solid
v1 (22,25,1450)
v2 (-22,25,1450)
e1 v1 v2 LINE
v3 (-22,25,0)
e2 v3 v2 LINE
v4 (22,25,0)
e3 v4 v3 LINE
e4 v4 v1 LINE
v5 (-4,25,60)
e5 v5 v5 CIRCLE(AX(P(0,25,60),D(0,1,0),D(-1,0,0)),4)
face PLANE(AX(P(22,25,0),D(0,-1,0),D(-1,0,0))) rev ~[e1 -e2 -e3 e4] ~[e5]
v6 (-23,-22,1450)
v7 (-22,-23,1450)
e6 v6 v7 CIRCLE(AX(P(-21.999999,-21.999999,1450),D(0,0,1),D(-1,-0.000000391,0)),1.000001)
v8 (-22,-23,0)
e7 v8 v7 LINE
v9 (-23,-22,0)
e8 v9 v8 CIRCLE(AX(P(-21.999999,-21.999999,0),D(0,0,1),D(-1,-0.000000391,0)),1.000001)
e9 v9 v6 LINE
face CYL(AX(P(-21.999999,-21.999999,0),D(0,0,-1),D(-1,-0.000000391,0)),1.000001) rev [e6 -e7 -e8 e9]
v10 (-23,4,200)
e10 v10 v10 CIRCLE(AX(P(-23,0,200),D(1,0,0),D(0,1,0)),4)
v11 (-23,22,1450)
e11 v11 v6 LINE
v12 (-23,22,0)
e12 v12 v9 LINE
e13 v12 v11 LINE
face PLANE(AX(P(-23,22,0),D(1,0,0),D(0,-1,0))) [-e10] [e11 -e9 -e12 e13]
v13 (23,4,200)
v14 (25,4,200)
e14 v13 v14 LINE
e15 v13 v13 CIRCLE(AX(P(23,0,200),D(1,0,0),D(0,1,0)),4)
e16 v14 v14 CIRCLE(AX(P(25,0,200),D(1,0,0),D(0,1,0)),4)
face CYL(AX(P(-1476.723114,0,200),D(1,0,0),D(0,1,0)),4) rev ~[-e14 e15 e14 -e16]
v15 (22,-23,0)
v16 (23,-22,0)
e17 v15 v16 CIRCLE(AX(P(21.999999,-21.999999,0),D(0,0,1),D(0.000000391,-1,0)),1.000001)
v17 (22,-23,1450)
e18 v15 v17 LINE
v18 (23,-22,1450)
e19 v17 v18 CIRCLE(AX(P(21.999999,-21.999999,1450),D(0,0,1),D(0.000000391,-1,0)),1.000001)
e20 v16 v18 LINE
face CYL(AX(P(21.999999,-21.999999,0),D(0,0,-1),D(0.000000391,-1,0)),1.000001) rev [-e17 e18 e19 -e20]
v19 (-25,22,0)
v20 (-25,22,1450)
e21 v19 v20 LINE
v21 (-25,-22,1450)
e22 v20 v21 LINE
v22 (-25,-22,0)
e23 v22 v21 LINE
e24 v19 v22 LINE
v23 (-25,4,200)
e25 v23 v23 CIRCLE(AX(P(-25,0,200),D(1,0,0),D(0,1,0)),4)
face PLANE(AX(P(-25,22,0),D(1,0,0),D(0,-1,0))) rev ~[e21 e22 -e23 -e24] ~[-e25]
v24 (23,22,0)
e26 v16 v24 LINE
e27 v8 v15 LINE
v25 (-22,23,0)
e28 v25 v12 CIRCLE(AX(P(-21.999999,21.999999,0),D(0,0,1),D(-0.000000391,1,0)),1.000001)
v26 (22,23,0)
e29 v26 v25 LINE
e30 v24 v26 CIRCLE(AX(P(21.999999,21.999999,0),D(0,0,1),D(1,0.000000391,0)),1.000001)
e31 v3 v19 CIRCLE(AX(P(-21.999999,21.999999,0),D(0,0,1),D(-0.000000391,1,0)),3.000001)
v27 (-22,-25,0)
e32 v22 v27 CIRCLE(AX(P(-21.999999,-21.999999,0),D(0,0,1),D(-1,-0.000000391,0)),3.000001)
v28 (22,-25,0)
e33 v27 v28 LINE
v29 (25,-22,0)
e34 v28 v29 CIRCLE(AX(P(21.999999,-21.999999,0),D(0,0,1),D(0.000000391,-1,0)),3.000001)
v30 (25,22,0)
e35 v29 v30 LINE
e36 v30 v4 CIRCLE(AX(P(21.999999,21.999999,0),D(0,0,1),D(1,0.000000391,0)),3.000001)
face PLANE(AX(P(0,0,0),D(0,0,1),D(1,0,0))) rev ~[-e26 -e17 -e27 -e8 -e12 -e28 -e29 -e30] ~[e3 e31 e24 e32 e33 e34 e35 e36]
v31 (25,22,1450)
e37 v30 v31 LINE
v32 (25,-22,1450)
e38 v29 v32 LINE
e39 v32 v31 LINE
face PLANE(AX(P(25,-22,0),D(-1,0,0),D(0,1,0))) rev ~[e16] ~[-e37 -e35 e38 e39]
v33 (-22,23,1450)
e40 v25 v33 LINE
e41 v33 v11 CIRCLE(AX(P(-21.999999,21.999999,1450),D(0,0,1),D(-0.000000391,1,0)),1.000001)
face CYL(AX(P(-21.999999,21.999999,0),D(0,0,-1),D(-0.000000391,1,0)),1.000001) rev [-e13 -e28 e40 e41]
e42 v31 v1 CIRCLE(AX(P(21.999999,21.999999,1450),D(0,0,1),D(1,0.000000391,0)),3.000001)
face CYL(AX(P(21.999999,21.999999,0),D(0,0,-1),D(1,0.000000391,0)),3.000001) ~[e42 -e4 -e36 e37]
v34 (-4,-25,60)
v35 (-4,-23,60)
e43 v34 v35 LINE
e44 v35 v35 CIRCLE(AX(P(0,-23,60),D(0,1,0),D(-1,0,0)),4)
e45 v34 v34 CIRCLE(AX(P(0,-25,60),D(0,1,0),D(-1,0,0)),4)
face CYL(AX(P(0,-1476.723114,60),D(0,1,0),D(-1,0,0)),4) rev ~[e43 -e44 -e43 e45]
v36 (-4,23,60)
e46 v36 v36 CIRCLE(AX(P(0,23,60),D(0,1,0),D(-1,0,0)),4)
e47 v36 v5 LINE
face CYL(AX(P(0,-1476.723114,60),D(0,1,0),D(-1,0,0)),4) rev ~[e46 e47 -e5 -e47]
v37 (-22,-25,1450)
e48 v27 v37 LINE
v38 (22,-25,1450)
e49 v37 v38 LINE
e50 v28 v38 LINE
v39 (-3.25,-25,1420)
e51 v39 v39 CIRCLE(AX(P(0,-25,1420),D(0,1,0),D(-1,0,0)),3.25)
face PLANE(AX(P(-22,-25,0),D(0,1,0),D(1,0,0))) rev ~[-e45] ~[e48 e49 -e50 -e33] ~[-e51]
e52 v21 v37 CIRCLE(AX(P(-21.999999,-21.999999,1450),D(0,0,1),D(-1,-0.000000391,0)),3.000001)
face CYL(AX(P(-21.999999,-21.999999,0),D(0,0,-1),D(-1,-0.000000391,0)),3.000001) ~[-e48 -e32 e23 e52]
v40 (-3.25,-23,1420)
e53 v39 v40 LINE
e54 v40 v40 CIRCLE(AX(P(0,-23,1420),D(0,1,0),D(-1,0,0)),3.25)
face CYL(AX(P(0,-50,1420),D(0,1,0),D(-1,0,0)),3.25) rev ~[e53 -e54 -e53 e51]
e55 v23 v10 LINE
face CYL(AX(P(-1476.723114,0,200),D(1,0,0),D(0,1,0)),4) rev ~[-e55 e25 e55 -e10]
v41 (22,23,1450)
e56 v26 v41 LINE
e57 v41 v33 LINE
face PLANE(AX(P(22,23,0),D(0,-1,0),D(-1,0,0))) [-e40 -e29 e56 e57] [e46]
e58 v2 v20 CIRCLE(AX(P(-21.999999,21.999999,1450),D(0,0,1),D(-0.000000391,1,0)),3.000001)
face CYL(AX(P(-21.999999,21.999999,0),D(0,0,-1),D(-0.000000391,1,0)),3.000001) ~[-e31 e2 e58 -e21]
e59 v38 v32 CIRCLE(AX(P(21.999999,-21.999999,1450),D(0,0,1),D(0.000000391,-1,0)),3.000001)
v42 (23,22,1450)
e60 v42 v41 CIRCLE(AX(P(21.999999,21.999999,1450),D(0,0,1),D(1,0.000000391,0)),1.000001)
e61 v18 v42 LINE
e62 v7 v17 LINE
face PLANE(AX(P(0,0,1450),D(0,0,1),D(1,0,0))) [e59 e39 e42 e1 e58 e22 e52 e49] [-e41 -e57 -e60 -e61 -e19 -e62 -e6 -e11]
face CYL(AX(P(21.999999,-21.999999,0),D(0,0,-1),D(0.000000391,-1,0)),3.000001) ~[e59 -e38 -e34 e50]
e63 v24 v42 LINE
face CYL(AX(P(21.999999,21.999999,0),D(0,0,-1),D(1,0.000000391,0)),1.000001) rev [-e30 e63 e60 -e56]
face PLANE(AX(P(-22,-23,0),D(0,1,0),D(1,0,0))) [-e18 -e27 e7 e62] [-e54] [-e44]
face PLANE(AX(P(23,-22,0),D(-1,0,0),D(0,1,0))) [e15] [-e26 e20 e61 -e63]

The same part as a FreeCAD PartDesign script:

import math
import FreeCAD as App
import Part
import Sketcher
from FreeCAD import Vector


def faces_at(feature, points):
    """Names of the faces that lie closest to the given points."""
    faces = feature.Shape.Faces
    near = lambda p: min(range(len(faces)), key=lambda i: faces[i].distToShape(Part.Vertex(*p))[0])
    return sorted({f"Face{near(p) + 1}" for p in points})

doc = App.newDocument("Part")
body = doc.addObject("PartDesign::Body", "Body")

# Sketch on XY plane
sketch1 = body.newObject("Sketcher::SketchObject", "Sketch")
sketch1.AttachmentSupport = (doc.getObject("XY_Plane"), [""])
sketch1.MapMode = "FlatFace"
sketch1.addGeometry([
    Part.ArcOfCircle(Part.Circle(Vector(-22, -22, 0), Vector(0, 0, 1), 3), math.radians(-180), math.radians(-90)),  # 0
    Part.LineSegment(Vector(-22, -25, 0), Vector(22, -25, 0)),  # 1
    Part.ArcOfCircle(Part.Circle(Vector(22, -22, 0), Vector(0, 0, 1), 3), math.radians(-90), math.radians(0)),  # 2
    Part.LineSegment(Vector(25, -22, 0), Vector(25, 22, 0)),  # 3
    Part.ArcOfCircle(Part.Circle(Vector(22, 22, 0), Vector(0, 0, 1), 3), math.radians(0), math.radians(90)),  # 4
    Part.LineSegment(Vector(22, 25, 0), Vector(-22, 25, 0)),  # 5
    Part.ArcOfCircle(Part.Circle(Vector(-22, 22, 0), Vector(0, 0, 1), 3), math.radians(90), math.radians(180)),  # 6
    Part.LineSegment(Vector(-25, 22, 0), Vector(-25, -22, 0)),  # 7
], False)
sketch1.addConstraint([
    Sketcher.Constraint("Tangent", 0, 2, 1, 1),
    Sketcher.Constraint("Tangent", 1, 2, 2, 1),
    Sketcher.Constraint("Tangent", 2, 2, 3, 1),
    Sketcher.Constraint("Tangent", 3, 2, 4, 1),
    Sketcher.Constraint("Tangent", 4, 2, 5, 1),
    Sketcher.Constraint("Tangent", 5, 2, 6, 1),
    Sketcher.Constraint("Tangent", 6, 2, 7, 1),
    Sketcher.Constraint("Tangent", 7, 2, 0, 1),
    Sketcher.Constraint("Horizontal", 1),
    Sketcher.Constraint("Vertical", 3),
    Sketcher.Constraint("Horizontal", 5),
    Sketcher.Constraint("Vertical", 7),
    Sketcher.Constraint("Equal", 0, 2),
    Sketcher.Constraint("Equal", 2, 4),
    Sketcher.Constraint("Equal", 4, 6),
    Sketcher.Constraint("Symmetric", 0, 3, 4, 3, -1, 1),
    Sketcher.Constraint("Equal", 5, 3),
    Sketcher.Constraint("Radius", 0, 3.000001),
    Sketcher.Constraint("DistanceX", 1, 1, 1, 2, 44.0),
])
pad1 = body.newObject("PartDesign::Pad", "Pad")
pad1.Profile = sketch1
pad1.Length = 1450
doc.recompute()

thickness = body.newObject("PartDesign::Thickness", "Thickness")
thickness.Base = (pad1, faces_at(pad1, [(0, 0, 1450), (0, 0, 0)]))
thickness.Value = 2
thickness.Reversed = True
thickness.Join = "Arc"

# Sketch on XZ plane
sketch2 = body.newObject("Sketcher::SketchObject", "Sketch001")
sketch2.AttachmentSupport = (doc.getObject("XZ_Plane"), [""])
sketch2.MapMode = "FlatFace"
sketch2.AttachmentOffset = App.Placement(Vector(0, 0, 25), App.Rotation())
sketch2.addGeometry(Part.Circle(Vector(0, 1420, 0), Vector(0, 0, 1), 3.2), False)
sketch2.addConstraint([
    Sketcher.Constraint("PointOnObject", 0, 3, -2),
    Sketcher.Constraint("Diameter", 0, 6.5),
    Sketcher.Constraint("DistanceY", -1, 1, 0, 3, 1420.0),
])
doc.recompute()
hole = body.newObject("PartDesign::Hole", "Hole")
hole.Profile = sketch2
hole.ThreadType = "None"
hole.Diameter = 6.5
hole.DepthType = "Dimension"
hole.Depth = 25
hole.DrillPoint = "Flat"

# Sketch on XZ plane
sketch3 = body.newObject("Sketcher::SketchObject", "Sketch002")
sketch3.AttachmentSupport = (doc.getObject("XZ_Plane"), [""])
sketch3.MapMode = "FlatFace"
sketch3.AttachmentOffset = App.Placement(Vector(0, 0, 25), App.Rotation())
sketch3.addGeometry(Part.Circle(Vector(0, 60, 0), Vector(0, 0, 1), 4), False)
sketch3.addConstraint([
    Sketcher.Constraint("PointOnObject", 0, 3, -2),
    Sketcher.Constraint("Diameter", 0, 8.0),
    Sketcher.Constraint("DistanceY", -1, 1, 0, 3, 60.0),
])
doc.recompute()
hole2 = body.newObject("PartDesign::Hole", "Hole001")
hole2.Profile = sketch3
hole2.ThreadType = "None"
hole2.Diameter = 8
hole2.DepthType = "ThroughAll"

# Sketch on YZ plane
sketch4 = body.newObject("Sketcher::SketchObject", "Sketch003")
sketch4.AttachmentSupport = (doc.getObject("YZ_Plane"), [""])
sketch4.MapMode = "FlatFace"
sketch4.AttachmentOffset = App.Placement(Vector(0, 0, -25), App.Rotation())
sketch4.addGeometry(Part.Circle(Vector(0, 200, 0), Vector(0, 0, 1), 4), False)
sketch4.addConstraint([
    Sketcher.Constraint("PointOnObject", 0, 3, -2),
    Sketcher.Constraint("Diameter", 0, 8.0),
    Sketcher.Constraint("DistanceY", -1, 1, 0, 3, 200.0),
])
doc.recompute()
hole3 = body.newObject("PartDesign::Hole", "Hole002")
hole3.Profile = sketch4
hole3.ThreadType = "None"
hole3.Diameter = 8
hole3.DepthType = "ThroughAll"
hole3.Reversed = True

doc.recompute()
